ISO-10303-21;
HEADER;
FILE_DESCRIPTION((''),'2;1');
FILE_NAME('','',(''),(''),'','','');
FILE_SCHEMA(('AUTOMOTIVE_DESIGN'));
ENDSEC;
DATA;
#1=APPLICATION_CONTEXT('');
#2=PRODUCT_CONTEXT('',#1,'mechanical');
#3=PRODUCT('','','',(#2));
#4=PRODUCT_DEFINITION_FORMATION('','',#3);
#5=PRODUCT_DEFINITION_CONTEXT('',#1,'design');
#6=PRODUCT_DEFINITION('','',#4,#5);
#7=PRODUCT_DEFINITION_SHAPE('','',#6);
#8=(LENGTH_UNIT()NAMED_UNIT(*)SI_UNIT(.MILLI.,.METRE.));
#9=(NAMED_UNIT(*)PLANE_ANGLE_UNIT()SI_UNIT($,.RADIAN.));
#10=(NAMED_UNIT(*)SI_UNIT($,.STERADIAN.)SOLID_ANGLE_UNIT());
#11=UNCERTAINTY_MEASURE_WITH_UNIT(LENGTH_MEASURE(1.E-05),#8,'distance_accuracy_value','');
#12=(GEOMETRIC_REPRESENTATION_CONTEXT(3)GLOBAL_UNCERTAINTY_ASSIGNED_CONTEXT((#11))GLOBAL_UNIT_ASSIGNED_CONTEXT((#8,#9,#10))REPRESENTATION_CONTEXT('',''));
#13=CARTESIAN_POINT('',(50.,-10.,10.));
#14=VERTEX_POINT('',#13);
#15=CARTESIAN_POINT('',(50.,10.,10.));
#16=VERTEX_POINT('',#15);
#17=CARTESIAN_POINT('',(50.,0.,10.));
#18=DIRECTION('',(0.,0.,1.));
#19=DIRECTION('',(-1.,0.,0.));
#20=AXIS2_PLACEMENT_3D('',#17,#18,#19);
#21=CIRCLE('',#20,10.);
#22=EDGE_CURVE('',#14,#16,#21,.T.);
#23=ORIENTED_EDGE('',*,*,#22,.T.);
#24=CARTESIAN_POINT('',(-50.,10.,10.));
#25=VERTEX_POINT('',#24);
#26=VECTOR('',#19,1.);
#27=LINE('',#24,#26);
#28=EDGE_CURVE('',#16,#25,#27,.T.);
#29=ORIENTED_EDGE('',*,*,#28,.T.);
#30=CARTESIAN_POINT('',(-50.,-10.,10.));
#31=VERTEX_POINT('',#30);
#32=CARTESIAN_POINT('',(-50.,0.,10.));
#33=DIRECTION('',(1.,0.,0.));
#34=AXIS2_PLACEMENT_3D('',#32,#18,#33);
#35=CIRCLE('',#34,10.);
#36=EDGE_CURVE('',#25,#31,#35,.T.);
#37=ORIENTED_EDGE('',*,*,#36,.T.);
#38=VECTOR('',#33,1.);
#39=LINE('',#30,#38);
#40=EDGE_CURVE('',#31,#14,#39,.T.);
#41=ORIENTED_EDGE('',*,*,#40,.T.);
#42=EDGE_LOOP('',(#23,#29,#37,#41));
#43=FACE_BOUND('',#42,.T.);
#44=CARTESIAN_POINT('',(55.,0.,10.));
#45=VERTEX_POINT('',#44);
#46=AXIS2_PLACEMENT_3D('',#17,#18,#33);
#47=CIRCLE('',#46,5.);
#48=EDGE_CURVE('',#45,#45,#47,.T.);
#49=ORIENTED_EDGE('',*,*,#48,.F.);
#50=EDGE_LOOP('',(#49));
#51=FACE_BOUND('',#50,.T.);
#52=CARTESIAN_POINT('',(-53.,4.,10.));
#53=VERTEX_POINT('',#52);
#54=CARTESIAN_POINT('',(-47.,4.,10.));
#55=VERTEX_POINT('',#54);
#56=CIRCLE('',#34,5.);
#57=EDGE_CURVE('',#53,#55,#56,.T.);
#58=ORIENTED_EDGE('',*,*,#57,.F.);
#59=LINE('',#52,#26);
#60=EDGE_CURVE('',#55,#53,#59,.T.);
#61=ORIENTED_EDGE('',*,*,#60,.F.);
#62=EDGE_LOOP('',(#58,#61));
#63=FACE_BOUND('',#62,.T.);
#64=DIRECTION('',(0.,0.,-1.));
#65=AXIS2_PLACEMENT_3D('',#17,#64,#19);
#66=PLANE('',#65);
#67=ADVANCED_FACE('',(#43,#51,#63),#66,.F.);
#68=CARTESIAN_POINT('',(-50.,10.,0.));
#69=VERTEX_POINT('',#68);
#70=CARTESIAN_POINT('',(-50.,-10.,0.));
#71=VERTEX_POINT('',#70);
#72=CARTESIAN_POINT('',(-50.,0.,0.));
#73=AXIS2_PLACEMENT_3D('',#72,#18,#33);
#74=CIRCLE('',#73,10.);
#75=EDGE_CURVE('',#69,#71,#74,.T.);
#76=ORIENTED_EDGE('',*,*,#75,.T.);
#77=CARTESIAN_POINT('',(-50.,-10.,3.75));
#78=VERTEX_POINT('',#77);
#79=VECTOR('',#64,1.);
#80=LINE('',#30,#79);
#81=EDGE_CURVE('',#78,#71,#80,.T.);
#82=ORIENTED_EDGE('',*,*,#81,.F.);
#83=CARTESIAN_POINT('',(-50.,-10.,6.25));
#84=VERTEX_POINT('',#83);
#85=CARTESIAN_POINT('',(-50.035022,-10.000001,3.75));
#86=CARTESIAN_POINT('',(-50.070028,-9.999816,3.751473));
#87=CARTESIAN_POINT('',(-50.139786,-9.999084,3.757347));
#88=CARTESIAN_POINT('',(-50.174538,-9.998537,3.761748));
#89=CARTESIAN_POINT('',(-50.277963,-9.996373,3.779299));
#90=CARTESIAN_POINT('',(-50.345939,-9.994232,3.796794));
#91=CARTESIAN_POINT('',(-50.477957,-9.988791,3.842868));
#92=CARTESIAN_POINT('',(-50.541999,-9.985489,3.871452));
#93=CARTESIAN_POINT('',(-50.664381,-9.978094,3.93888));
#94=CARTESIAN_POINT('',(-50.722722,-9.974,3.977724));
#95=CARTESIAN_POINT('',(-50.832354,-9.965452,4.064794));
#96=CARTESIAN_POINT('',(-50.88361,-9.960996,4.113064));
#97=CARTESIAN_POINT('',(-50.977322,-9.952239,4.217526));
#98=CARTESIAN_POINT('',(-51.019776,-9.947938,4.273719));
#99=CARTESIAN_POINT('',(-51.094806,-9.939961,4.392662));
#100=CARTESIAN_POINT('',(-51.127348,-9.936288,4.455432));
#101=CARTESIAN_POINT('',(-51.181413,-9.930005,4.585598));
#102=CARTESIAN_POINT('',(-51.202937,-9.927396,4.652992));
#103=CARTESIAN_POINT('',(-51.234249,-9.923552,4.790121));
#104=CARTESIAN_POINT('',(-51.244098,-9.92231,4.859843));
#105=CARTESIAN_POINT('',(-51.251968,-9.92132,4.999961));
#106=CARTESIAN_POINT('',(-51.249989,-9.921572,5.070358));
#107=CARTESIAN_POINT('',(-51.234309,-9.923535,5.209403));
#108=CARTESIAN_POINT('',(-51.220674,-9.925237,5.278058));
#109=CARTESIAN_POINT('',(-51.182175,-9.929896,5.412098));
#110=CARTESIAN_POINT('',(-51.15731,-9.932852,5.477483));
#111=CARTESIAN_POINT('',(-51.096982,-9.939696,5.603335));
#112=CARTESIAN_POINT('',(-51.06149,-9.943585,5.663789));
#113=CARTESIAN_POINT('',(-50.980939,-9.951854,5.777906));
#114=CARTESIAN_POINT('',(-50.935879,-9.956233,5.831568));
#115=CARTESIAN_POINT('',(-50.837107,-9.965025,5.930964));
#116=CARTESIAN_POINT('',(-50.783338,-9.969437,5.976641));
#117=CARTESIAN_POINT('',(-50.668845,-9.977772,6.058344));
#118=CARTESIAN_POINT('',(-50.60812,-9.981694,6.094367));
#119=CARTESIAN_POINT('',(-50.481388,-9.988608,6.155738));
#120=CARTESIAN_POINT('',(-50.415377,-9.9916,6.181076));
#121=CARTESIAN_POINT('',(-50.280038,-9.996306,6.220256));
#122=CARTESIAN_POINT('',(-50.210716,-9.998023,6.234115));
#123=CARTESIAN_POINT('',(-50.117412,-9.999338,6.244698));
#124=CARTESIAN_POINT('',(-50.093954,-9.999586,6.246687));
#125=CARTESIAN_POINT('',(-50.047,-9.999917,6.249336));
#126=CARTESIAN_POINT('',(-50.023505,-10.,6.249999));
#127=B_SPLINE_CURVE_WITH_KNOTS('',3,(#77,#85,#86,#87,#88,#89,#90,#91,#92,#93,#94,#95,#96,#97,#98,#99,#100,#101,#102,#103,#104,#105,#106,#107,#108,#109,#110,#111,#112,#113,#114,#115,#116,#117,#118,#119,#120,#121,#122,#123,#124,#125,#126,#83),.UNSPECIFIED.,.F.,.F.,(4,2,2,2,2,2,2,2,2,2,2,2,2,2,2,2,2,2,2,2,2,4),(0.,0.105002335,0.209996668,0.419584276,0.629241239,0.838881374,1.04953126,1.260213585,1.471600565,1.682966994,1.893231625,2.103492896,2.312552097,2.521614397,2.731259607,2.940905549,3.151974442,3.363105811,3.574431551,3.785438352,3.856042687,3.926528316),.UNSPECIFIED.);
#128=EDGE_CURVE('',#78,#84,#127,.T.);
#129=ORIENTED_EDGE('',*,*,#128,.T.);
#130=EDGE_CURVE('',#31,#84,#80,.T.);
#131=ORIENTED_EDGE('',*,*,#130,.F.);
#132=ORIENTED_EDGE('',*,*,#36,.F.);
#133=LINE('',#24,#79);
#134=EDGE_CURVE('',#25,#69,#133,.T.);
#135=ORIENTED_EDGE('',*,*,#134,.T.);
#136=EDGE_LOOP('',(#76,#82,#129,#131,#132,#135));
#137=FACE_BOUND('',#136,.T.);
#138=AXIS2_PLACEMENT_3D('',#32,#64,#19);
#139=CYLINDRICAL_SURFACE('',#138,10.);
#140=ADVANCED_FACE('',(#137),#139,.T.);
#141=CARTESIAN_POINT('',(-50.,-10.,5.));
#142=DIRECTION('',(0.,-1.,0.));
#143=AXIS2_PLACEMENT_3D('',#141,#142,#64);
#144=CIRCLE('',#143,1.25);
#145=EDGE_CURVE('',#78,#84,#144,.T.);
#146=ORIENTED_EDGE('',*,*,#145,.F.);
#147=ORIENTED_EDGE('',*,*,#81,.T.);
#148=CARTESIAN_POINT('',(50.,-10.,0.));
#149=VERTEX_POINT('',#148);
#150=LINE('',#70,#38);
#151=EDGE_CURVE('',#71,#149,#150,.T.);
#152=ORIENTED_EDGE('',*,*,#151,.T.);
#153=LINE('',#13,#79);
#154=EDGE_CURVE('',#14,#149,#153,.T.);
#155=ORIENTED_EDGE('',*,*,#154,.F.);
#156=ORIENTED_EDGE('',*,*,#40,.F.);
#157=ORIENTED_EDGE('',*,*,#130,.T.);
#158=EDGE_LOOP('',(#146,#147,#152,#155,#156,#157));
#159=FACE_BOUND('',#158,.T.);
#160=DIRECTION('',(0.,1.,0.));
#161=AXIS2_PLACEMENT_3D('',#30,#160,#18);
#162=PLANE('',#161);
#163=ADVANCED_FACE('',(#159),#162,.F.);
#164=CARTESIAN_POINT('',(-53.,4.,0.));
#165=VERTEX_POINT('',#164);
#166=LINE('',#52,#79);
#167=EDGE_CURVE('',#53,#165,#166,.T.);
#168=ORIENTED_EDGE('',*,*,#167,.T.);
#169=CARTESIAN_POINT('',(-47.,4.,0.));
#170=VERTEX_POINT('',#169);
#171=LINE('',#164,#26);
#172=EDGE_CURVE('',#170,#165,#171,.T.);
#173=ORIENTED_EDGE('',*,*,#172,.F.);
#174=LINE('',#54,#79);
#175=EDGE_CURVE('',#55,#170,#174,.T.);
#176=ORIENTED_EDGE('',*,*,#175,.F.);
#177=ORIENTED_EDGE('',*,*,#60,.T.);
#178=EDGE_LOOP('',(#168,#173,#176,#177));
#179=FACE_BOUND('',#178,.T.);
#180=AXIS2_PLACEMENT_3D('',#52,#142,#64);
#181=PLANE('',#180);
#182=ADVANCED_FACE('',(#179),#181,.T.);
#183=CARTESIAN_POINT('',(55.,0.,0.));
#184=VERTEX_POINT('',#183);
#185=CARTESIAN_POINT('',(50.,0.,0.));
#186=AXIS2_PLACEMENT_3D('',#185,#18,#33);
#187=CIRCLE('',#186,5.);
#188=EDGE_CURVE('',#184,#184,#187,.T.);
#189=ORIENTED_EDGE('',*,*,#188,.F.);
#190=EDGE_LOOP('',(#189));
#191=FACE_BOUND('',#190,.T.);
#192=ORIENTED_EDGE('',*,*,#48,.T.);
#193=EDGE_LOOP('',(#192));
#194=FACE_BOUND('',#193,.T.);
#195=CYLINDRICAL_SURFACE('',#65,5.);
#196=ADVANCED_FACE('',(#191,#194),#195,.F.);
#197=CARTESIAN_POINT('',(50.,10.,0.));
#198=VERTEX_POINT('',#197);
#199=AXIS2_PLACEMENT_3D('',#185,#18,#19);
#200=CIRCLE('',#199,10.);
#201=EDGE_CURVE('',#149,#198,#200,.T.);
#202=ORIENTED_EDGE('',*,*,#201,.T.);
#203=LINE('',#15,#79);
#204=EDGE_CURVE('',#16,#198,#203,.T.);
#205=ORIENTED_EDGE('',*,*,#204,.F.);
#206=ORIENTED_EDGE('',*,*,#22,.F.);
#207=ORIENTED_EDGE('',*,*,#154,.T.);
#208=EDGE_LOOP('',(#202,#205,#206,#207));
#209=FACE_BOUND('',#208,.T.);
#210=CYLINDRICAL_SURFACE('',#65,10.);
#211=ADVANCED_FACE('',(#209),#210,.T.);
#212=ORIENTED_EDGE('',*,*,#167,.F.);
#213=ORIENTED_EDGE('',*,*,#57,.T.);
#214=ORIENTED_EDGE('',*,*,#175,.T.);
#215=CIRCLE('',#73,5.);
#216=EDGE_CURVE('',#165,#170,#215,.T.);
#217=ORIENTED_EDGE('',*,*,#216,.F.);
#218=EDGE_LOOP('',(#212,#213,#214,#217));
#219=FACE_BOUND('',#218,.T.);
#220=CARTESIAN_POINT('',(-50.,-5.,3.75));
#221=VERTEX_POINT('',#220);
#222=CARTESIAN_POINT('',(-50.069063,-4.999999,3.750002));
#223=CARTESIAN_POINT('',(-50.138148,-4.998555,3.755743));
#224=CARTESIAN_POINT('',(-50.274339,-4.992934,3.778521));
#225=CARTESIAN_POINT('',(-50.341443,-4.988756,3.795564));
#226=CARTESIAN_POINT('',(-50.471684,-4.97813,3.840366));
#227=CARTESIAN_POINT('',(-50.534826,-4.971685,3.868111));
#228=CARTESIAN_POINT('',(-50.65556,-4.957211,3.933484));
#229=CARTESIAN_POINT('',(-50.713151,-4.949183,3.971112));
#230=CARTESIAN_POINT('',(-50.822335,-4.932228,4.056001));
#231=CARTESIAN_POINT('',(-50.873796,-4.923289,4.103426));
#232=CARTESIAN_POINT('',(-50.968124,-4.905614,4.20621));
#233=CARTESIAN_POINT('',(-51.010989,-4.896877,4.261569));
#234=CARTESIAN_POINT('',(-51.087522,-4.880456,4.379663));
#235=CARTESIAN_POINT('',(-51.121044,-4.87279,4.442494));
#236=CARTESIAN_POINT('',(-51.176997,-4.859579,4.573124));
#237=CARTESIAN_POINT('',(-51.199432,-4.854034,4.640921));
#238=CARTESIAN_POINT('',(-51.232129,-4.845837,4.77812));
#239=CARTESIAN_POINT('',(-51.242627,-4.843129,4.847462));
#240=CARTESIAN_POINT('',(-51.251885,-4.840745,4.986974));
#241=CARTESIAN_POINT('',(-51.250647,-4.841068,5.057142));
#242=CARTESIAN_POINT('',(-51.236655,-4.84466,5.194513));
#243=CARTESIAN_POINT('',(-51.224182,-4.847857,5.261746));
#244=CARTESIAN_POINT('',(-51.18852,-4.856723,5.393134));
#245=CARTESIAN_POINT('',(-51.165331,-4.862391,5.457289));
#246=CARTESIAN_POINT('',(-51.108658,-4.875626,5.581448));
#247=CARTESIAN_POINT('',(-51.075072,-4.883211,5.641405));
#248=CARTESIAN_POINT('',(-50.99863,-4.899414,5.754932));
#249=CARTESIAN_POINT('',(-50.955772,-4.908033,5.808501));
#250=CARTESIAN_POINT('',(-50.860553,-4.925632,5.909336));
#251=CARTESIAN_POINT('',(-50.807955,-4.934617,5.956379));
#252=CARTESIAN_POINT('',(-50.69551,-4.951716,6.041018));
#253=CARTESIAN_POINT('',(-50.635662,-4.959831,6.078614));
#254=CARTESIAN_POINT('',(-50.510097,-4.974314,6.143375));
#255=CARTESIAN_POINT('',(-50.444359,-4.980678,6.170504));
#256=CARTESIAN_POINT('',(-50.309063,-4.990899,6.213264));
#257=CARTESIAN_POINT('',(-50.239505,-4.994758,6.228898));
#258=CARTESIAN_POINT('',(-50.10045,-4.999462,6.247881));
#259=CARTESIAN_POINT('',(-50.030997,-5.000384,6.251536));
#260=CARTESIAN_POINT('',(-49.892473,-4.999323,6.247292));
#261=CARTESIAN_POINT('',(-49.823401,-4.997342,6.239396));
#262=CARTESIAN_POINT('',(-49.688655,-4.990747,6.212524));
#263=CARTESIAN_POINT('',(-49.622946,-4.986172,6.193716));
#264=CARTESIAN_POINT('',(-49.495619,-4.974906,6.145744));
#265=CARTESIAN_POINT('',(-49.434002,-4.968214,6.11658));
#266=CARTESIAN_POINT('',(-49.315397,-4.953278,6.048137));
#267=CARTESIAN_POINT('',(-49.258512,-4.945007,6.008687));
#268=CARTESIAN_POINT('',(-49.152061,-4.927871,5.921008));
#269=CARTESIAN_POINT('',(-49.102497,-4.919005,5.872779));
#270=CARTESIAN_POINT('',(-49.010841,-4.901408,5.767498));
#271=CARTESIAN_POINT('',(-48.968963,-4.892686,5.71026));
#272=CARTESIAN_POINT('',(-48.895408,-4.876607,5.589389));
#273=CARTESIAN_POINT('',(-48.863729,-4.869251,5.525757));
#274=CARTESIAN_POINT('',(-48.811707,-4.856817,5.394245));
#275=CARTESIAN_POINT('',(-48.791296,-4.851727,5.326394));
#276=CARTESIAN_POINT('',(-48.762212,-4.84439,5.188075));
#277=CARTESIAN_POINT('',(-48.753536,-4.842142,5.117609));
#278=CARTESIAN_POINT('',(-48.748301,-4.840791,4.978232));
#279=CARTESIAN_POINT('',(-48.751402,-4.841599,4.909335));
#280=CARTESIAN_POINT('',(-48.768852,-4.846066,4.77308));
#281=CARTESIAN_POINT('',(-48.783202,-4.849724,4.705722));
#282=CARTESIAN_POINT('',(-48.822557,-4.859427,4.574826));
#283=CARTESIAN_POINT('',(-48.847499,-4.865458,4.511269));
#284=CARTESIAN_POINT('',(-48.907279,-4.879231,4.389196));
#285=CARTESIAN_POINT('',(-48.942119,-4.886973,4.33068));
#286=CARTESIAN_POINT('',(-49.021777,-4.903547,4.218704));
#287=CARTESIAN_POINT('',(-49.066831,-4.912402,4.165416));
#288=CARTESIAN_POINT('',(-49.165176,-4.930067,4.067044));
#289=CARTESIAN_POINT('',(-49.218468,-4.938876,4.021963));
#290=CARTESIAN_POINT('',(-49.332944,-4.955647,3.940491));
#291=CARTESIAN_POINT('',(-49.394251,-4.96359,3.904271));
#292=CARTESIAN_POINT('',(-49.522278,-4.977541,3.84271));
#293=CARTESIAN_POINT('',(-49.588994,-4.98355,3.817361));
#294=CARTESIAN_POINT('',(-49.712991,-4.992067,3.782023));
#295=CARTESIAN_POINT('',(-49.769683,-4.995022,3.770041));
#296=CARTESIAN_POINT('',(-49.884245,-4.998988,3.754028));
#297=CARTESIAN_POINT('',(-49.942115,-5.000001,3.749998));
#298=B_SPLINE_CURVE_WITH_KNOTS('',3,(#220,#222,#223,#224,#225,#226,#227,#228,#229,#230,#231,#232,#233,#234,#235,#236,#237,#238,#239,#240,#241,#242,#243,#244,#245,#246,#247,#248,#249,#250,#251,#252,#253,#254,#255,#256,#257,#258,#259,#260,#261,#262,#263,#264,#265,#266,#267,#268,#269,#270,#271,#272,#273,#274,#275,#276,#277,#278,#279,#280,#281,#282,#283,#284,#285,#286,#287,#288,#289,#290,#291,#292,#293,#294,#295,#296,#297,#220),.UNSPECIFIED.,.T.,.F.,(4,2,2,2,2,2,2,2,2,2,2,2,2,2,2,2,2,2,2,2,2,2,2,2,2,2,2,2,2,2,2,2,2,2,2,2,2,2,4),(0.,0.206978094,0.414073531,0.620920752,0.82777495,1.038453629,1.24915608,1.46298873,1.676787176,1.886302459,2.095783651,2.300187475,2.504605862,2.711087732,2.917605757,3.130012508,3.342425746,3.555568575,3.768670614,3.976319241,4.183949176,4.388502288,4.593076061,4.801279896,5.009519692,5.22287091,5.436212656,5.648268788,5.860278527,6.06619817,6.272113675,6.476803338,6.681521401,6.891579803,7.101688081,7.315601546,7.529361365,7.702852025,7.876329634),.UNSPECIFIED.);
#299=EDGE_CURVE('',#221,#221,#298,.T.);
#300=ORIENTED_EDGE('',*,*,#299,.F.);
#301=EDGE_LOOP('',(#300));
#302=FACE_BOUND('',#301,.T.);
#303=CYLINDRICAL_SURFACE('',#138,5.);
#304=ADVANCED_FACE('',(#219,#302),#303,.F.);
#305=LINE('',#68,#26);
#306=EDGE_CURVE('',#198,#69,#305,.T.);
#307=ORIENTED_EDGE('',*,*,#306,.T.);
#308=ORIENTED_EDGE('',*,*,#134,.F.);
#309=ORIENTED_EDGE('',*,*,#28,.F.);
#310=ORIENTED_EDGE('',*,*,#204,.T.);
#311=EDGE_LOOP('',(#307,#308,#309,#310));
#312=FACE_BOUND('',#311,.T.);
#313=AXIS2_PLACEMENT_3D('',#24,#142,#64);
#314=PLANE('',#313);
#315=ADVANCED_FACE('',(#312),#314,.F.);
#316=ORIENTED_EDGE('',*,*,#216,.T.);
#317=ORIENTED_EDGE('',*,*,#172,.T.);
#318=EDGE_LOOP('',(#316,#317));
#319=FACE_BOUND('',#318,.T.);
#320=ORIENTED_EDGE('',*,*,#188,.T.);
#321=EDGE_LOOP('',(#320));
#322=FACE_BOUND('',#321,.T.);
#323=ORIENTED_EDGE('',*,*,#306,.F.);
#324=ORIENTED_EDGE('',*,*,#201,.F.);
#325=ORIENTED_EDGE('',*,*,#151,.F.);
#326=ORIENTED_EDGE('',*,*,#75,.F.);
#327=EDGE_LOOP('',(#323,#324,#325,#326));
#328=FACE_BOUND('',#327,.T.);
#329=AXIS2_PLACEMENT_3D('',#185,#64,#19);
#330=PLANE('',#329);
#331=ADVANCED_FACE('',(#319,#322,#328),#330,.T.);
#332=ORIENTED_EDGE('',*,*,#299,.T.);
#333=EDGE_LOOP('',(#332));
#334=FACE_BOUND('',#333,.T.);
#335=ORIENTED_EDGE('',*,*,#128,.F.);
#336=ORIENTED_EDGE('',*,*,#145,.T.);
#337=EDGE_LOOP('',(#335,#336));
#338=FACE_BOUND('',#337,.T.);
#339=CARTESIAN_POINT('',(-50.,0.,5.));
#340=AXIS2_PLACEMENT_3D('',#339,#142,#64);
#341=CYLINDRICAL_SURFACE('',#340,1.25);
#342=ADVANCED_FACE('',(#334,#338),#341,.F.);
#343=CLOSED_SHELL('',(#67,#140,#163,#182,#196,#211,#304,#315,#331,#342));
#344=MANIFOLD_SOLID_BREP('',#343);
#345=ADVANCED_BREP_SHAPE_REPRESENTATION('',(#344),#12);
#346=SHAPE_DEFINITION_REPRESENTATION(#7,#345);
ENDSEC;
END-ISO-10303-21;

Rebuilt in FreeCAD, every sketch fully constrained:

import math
import FreeCAD as App
import Part
import Sketcher

V = App.Vector

doc = App.newDocument("Part")
body = doc.addObject("PartDesign::Body", "Body")

# Sketch on XY plane
sketch1 = body.newObject("Sketcher::SketchObject", "Sketch")
sketch1.AttachmentSupport = (doc.getObject("XY_Plane"), [""])
sketch1.MapMode = "FlatFace"
sketch1.addGeometry([
    Part.LineSegment(V(50, 10, 0), V(-50, 10, 0)),  # 0
    Part.ArcOfCircle(Part.Circle(V(-50, 0, 0), V(0, 0, 1), 10), math.radians(90), math.radians(270)),  # 1
    Part.LineSegment(V(-50, -10, 0), V(50, -10, 0)),  # 2
    Part.ArcOfCircle(Part.Circle(V(50, 0, 0), V(0, 0, 1), 10), math.radians(-90), math.radians(90)),  # 3
    Part.LineSegment(V(-53, 4, 0), V(-47, 4, 0)),  # 4
    Part.ArcOfCircle(Part.Circle(V(-50, 0, 0), V(0, 0, 1), 5), math.radians(126.869898), math.radians(413.130102)),  # 5
    Part.Circle(V(50, 0, 0), V(0, 0, 1), 5),  # 6
], False)
sketch1.addConstraint([
    Sketcher.Constraint("Tangent", 0, 2, 1, 1),
    Sketcher.Constraint("Tangent", 1, 2, 2, 1),
    Sketcher.Constraint("Tangent", 2, 2, 3, 1),
    Sketcher.Constraint("Tangent", 3, 2, 0, 1),
    Sketcher.Constraint("Coincident", 4, 1, 5, 1),
    Sketcher.Constraint("Coincident", 5, 2, 4, 2),
    Sketcher.Constraint("Horizontal", 0),
    Sketcher.Constraint("Horizontal", 2),
    Sketcher.Constraint("Horizontal", 4),
    Sketcher.Constraint("Coincident", 5, 3, 1, 3),
    Sketcher.Constraint("Coincident", 6, 3, 3, 3),
    Sketcher.Constraint("Equal", 5, 6),
    Sketcher.Constraint("Symmetric", 1, 3, 3, 3, -1, 1),
    Sketcher.Constraint("Diameter", 6, 10.0),
    Sketcher.Constraint("Radius", 1, 10.0),
    Sketcher.Constraint("DistanceX", 0, 2, 0, 1, 100.0),
    Sketcher.Constraint("DistanceX", 4, 1, 4, 2, 6.0),
])
pad1 = body.newObject("PartDesign::Pad", "Pad")
pad1.Profile = sketch1
pad1.Length = 10

# Sketch on XZ plane
sketch2 = body.newObject("Sketcher::SketchObject", "Sketch001")
sketch2.AttachmentSupport = (doc.getObject("XZ_Plane"), [""])
sketch2.MapMode = "FlatFace"
sketch2.AttachmentOffset = App.Placement(V(0, 0, 10), App.Rotation())
sketch2.addGeometry(Part.Circle(V(-50, 5, 0), V(0, 0, 1), 1.25), False)
sketch2.addConstraint([
    Sketcher.Constraint("Diameter", 0, 2.5),
    Sketcher.Constraint("DistanceX", 0, 3, -1, 1, 50.0),
    Sketcher.Constraint("DistanceY", -1, 1, 0, 3, 5.0),
])
pocket1 = body.newObject("PartDesign::Pocket", "Pocket")
pocket1.Profile = sketch2
pocket1.Length = 10

doc.recompute()
